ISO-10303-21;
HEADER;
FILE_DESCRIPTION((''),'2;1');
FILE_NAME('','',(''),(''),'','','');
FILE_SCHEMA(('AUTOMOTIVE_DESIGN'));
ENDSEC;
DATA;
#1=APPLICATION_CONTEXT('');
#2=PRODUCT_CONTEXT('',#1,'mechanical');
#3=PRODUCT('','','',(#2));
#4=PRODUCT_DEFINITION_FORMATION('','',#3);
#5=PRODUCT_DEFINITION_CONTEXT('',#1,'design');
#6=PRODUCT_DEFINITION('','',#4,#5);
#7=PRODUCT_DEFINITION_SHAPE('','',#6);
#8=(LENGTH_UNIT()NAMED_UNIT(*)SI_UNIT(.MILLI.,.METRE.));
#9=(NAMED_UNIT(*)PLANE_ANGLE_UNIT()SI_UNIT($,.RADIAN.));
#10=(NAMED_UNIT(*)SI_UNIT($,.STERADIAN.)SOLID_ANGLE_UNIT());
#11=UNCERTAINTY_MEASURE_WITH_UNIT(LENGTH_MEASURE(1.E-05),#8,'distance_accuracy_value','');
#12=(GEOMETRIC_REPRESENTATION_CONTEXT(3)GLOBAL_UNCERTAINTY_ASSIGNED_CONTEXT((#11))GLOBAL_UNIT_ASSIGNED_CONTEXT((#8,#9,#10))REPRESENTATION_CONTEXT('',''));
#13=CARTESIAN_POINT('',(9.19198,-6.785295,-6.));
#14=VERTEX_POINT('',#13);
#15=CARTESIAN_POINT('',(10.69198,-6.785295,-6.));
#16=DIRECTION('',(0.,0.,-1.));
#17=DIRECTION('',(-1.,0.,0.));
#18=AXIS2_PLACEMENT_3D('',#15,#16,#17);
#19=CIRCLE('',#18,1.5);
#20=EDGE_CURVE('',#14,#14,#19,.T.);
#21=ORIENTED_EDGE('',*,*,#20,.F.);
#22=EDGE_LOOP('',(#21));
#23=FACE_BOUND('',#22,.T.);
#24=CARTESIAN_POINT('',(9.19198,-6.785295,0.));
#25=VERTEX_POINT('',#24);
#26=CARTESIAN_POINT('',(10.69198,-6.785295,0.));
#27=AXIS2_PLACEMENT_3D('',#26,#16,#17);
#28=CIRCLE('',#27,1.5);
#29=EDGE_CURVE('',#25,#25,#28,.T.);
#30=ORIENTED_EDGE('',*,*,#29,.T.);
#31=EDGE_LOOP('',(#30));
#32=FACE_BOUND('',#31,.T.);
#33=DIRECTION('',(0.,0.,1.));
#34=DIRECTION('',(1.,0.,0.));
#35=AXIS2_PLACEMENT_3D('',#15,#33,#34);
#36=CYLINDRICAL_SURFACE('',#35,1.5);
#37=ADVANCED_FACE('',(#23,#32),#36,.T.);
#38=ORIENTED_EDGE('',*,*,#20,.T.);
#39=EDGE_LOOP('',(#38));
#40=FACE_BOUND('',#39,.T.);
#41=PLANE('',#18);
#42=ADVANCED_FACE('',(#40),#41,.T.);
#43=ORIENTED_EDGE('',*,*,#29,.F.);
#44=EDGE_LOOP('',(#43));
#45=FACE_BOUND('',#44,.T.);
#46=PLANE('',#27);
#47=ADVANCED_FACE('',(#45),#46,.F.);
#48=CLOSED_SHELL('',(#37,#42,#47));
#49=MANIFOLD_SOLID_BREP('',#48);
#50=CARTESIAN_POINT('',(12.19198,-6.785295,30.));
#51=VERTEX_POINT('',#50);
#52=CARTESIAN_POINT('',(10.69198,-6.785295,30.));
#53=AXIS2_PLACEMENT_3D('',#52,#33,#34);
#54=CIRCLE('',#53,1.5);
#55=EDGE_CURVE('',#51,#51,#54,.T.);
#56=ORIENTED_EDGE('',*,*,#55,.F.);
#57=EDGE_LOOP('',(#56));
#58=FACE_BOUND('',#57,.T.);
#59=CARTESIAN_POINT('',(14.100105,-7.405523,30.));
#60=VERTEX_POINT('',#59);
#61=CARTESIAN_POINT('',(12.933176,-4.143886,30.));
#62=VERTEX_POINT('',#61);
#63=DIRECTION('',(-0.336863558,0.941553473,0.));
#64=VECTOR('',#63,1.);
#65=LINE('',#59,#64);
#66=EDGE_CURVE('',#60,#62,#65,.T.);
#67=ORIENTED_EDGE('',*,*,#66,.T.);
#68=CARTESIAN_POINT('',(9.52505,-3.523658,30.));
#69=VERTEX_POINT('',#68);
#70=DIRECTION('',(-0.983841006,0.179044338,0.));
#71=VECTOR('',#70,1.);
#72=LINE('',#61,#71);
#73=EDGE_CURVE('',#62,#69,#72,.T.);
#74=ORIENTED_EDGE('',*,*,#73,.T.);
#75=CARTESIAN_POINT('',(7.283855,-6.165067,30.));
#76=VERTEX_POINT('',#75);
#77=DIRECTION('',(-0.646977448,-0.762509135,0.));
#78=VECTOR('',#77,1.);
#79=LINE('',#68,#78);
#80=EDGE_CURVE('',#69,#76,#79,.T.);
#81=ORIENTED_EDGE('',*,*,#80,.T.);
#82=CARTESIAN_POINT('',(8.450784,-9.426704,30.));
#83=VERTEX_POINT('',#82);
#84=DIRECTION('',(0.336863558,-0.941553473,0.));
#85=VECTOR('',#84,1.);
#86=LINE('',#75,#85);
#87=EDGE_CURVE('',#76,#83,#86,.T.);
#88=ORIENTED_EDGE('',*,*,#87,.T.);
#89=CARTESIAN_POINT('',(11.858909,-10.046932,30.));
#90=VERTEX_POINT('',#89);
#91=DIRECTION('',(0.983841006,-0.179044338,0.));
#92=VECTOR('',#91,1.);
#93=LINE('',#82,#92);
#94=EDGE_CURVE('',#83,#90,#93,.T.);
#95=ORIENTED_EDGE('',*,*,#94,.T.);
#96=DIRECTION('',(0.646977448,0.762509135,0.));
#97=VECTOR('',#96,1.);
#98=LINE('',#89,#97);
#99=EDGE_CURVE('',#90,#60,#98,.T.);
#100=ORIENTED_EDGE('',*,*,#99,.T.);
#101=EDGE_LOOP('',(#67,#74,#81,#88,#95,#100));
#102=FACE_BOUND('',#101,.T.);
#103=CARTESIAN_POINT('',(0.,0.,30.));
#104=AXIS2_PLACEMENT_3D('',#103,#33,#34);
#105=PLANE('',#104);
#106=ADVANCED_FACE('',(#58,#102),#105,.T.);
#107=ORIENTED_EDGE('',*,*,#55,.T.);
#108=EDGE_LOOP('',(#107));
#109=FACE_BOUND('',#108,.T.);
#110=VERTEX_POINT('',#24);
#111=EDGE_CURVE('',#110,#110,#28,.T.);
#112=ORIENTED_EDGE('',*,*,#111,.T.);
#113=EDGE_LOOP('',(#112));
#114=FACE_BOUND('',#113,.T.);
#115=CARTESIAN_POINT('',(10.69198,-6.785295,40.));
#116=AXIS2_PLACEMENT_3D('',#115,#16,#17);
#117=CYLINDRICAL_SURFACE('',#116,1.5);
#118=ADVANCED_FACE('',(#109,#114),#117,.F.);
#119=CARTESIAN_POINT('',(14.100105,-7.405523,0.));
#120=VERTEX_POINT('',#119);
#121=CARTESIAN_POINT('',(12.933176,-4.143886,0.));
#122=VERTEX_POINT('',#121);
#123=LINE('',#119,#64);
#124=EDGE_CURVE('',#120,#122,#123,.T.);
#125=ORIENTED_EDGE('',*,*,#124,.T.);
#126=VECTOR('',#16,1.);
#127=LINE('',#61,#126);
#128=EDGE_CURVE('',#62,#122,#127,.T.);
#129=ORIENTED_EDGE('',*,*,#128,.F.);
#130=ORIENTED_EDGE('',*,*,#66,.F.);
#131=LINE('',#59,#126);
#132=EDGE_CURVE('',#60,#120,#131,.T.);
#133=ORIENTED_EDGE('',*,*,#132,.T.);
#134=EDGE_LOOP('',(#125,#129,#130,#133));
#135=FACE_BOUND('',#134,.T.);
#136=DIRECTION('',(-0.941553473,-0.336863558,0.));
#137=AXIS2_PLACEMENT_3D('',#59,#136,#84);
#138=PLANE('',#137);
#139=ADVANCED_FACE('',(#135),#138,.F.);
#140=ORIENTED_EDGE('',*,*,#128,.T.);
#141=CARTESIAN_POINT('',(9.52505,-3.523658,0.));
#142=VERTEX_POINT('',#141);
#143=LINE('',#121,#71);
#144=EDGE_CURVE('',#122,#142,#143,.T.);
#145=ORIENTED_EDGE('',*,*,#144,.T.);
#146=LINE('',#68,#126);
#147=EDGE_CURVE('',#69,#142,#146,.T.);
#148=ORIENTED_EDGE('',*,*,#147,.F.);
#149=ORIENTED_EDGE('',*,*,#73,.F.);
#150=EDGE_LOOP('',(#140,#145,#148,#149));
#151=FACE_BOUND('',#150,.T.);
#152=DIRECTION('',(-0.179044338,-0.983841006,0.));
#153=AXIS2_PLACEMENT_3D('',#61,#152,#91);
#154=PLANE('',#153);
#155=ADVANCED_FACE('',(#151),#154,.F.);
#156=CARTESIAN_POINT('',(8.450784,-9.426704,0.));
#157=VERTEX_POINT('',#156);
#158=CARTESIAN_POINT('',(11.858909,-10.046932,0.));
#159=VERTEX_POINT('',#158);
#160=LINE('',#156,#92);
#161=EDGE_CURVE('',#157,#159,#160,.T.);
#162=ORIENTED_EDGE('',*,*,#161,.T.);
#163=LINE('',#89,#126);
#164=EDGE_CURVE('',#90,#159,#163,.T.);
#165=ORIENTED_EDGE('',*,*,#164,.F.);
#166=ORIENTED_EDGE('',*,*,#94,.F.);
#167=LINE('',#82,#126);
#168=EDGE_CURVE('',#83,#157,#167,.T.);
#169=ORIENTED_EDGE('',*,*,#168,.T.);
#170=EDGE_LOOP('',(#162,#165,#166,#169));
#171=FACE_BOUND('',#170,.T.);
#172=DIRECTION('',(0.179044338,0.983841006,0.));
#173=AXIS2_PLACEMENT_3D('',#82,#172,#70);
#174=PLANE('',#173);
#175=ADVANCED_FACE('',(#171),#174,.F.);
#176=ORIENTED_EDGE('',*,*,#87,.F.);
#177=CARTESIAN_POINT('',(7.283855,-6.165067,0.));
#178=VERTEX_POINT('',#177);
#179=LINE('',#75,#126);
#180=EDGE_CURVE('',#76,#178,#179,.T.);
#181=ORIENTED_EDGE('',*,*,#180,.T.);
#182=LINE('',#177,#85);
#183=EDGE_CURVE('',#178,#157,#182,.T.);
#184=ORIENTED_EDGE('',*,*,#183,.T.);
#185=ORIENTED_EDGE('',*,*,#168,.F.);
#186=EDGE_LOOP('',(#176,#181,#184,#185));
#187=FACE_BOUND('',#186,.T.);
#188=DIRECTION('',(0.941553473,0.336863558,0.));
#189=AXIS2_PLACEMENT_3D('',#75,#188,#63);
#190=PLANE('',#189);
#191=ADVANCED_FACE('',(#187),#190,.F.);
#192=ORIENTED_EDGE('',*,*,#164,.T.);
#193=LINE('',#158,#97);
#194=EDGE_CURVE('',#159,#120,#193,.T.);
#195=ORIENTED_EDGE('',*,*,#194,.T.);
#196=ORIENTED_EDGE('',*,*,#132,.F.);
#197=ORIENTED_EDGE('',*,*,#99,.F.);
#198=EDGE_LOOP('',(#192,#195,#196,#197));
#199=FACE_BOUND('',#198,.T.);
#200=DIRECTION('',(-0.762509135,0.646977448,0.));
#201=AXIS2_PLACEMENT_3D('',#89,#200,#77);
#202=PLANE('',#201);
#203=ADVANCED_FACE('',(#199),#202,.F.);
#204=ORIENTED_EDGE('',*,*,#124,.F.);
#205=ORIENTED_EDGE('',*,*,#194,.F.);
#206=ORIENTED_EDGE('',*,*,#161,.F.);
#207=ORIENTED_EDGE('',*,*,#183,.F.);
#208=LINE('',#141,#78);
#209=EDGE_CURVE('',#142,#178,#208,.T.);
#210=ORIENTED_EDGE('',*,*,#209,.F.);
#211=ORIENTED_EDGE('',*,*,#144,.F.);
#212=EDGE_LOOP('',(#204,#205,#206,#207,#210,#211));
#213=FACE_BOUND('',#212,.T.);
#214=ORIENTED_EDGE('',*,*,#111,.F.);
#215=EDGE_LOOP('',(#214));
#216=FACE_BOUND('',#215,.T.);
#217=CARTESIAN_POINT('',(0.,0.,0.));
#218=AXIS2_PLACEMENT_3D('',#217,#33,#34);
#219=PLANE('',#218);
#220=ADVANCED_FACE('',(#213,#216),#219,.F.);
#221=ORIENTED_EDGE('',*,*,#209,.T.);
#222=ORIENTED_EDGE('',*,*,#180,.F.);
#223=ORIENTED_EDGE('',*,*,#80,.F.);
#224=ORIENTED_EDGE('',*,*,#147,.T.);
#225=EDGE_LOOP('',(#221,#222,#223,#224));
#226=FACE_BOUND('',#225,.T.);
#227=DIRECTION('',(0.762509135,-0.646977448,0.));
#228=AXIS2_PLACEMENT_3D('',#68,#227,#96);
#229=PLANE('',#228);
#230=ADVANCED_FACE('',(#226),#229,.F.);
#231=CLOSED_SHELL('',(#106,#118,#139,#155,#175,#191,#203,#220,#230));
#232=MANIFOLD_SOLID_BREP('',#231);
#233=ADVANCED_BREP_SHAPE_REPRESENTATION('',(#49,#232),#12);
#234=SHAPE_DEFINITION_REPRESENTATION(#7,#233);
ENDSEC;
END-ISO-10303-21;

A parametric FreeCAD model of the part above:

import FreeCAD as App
import Part
import Sketcher
from FreeCAD import Vector
Q = App.Units.Quantity

doc = App.newDocument("Part")
body = doc.addObject("PartDesign::Body", "Body")

# Sketch on XY plane
sketch1 = body.newObject("Sketcher::SketchObject", "Sketch")
sketch1.AttachmentSupport = (doc.getObject("XY_Plane"), [""])
sketch1.MapMode = "FlatFace"
sketch1.addGeometry([
    Part.LineSegment(Vector(12.9, -4.1, 0), Vector(9.5, -3.5, 0)),  # 0
    Part.LineSegment(Vector(9.5, -3.5, 0), Vector(7.3, -6.2, 0)),  # 1
    Part.LineSegment(Vector(7.3, -6.2, 0), Vector(8.5, -9.4, 0)),  # 2
    Part.LineSegment(Vector(8.5, -9.4, 0), Vector(11.9, -10, 0)),  # 3
    Part.LineSegment(Vector(11.9, -10, 0), Vector(14.1, -7.4, 0)),  # 4
    Part.LineSegment(Vector(14.1, -7.4, 0), Vector(12.9, -4.1, 0)),  # 5
], False)
sketch1.addConstraint([
    Sketcher.Constraint("Coincident", 0, 2, 1, 1),
    Sketcher.Constraint("Coincident", 1, 2, 2, 1),
    Sketcher.Constraint("Coincident", 2, 2, 3, 1),
    Sketcher.Constraint("Coincident", 3, 2, 4, 1),
    Sketcher.Constraint("Coincident", 4, 2, 5, 1),
    Sketcher.Constraint("Coincident", 5, 2, 0, 1),
    Sketcher.Constraint("Parallel", 0, 3),
    Sketcher.Constraint("Parallel", 1, 4),
    Sketcher.Constraint("Parallel", 2, 5),
    Sketcher.Constraint("Equal", 0, 1),
    Sketcher.Constraint("Equal", 1, 2),
    Sketcher.Constraint("Equal", 2, 3),
    Sketcher.Constraint("Distance", 0, Q("3.464102 mm")),
    Sketcher.Constraint("DistanceX", -1, 1, 0, 2, Q("9.52505 mm")),
    Sketcher.Constraint("DistanceY", 0, 2, -1, 1, Q("3.523658 mm")),
    Sketcher.Constraint("DistanceX", -1, 1, 3, 2, Q("11.858909 mm")),
    Sketcher.Constraint("DistanceY", 3, 2, -1, 1, Q("10.046932 mm")),
    Sketcher.Constraint("DistanceY", 1, 2, 0, 2, Q("2.641409 mm")),
])
pad1 = body.newObject("PartDesign::Pad", "Pad")
pad1.Profile = sketch1
pad1.Length = 30

# Sketch on XY plane
sketch2 = body.newObject("Sketcher::SketchObject", "Sketch001")
sketch2.AttachmentSupport = (doc.getObject("XY_Plane"), [""])
sketch2.MapMode = "FlatFace"
sketch2.addGeometry(Part.Circle(Vector(10.7, -6.8, 0), Vector(0, 0, 1), 1.5), False)
sketch2.addConstraint([
    Sketcher.Constraint("Diameter", 0, Q("3 mm")),
    Sketcher.Constraint("DistanceX", -1, 1, 0, 3, Q("10.69198 mm")),
    Sketcher.Constraint("DistanceY", 0, 3, -1, 1, Q("6.785295 mm")),
])
pocket1 = body.newObject("PartDesign::Pocket", "Pocket")
pocket1.Profile = sketch2
pocket1.Length = 40
pocket1.Reversed = True
body2 = doc.addObject("PartDesign::Body", "Body001")

# Sketch on XY plane
sketch3 = body2.newObject("Sketcher::SketchObject", "Sketch002")
sketch3.AttachmentSupport = (doc.getObject("XY_Plane001"), [""])
sketch3.MapMode = "FlatFace"
sketch3.addGeometry(Part.Circle(Vector(10.7, -6.8, 0), Vector(0, 0, 1), 1.5), False)
sketch3.addConstraint([
    Sketcher.Constraint("Diameter", 0, Q("3 mm")),
    Sketcher.Constraint("DistanceX", -1, 1, 0, 3, Q("10.69198 mm")),
    Sketcher.Constraint("DistanceY", 0, 3, -1, 1, Q("6.785295 mm")),
])
pad2 = body2.newObject("PartDesign::Pad", "Pad001")
pad2.Profile = sketch3
pad2.Length = 6
pad2.Reversed = True

doc.recompute()
